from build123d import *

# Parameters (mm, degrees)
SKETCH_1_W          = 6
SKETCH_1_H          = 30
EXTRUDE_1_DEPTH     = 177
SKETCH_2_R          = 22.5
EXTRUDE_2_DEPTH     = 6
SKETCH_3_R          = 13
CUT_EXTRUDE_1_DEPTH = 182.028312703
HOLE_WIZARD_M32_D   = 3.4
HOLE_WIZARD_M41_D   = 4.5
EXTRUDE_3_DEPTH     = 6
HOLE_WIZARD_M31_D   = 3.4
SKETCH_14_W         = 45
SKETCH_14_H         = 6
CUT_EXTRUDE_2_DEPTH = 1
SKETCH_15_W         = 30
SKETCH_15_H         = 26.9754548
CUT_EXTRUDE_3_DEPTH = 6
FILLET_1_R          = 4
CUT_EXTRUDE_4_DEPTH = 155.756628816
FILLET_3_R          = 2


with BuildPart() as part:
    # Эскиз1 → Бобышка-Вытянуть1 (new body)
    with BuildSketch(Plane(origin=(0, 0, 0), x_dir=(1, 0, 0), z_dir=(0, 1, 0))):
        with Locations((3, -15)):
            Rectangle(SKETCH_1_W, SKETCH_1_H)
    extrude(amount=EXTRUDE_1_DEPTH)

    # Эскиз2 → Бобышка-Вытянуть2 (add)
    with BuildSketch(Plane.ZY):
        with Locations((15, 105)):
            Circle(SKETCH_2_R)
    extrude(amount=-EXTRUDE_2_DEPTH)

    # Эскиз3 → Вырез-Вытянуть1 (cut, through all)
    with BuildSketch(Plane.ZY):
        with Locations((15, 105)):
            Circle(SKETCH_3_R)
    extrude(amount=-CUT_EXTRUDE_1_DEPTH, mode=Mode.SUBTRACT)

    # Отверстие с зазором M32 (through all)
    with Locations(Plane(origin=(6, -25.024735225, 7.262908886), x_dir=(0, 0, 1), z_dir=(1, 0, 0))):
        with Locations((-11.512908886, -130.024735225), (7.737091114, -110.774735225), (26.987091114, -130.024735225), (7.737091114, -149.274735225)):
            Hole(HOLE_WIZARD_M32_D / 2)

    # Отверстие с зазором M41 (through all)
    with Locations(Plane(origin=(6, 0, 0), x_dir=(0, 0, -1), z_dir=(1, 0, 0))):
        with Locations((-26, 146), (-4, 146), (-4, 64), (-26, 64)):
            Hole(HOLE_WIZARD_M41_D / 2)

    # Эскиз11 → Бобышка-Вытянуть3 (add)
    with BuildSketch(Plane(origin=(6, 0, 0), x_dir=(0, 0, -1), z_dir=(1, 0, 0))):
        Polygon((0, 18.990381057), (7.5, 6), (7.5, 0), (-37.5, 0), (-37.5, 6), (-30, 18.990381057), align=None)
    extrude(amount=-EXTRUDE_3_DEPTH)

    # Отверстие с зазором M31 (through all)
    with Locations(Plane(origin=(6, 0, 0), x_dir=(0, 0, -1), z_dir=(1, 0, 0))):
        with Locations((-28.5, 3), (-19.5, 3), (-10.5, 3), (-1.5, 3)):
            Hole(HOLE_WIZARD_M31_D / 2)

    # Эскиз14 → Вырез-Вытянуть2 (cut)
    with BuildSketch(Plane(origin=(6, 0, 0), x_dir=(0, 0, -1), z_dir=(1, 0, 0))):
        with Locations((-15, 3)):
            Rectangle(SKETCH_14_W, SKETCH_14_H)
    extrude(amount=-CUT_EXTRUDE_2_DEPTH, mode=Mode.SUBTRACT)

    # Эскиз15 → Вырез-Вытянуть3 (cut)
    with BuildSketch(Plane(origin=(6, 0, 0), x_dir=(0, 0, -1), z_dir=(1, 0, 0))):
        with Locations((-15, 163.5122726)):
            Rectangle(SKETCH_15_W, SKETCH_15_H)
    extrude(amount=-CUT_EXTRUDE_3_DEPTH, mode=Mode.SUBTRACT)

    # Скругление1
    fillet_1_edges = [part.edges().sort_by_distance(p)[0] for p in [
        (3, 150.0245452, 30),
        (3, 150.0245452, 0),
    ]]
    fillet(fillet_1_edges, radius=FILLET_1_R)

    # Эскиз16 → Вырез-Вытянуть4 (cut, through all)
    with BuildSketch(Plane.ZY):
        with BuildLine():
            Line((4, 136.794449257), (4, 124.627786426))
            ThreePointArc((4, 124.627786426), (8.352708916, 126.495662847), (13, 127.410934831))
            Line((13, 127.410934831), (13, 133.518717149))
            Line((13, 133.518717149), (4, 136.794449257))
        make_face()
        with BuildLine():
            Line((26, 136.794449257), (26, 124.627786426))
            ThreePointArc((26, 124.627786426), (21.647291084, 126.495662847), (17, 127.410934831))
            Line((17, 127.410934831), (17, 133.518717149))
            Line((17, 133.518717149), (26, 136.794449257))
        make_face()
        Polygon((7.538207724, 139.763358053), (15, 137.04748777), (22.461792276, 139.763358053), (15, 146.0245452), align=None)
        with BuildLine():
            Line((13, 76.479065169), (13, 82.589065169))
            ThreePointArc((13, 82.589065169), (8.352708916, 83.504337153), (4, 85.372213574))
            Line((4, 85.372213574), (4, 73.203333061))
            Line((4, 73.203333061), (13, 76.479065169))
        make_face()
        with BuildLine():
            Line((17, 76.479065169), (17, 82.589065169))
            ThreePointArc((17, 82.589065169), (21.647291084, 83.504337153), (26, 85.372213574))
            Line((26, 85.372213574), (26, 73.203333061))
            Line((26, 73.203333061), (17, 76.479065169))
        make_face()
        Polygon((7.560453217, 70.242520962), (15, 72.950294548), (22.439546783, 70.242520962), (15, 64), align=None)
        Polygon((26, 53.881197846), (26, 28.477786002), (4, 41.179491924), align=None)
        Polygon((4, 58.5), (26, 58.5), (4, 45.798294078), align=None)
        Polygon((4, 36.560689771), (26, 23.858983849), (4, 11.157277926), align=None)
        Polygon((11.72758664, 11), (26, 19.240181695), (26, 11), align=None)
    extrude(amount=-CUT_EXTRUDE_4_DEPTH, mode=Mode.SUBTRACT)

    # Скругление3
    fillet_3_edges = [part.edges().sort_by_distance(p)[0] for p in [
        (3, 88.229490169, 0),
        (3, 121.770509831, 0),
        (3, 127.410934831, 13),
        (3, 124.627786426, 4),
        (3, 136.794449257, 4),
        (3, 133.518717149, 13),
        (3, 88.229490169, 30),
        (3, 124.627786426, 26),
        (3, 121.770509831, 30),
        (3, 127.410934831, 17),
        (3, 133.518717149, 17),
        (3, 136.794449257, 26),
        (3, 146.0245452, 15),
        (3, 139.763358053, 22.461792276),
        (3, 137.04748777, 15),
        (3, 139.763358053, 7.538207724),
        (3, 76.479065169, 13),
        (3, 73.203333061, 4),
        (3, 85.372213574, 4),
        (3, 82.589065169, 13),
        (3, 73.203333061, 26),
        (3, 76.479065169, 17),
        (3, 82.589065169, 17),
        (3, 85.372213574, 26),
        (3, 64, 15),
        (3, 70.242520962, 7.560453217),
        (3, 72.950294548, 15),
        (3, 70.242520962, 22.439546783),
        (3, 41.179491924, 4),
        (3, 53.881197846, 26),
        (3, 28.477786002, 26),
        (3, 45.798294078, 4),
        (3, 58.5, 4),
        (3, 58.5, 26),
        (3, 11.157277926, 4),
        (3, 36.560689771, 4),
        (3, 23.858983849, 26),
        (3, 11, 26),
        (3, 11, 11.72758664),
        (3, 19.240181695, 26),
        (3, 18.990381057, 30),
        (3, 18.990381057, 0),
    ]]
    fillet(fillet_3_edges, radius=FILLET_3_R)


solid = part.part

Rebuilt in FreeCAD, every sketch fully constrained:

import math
import FreeCAD as App
import Part
import Sketcher

V = App.Vector
Q = App.Units.Quantity


def edges_at(feature, points):
    """Names of the edges that pass closest to the given points."""
    edges = feature.Shape.Edges
    near = lambda p: min(range(len(edges)), key=lambda i: edges[i].distToShape(Part.Vertex(*p))[0])
    return sorted({f"Edge{near(p) + 1}" for p in points})


def add_polygon(sketch, points):
    """Adds a closed chain of lines whose ends are joined by coincident constraints."""
    first, n = sketch.GeometryCount, len(points)
    for a, b in zip(points, points[1:] + points[:1]):
        sketch.addGeometry(Part.LineSegment(App.Vector(*a, 0), App.Vector(*b, 0)), False)
    for i in range(n):
        sketch.addConstraint(Sketcher.Constraint("Coincident", first + i, 2, first + (i + 1) % n, 1))

doc = App.newDocument("Part")
params = doc.addObject("Spreadsheet::Sheet", "Params")
for row, (alias, value) in enumerate([
    ("sketch1_width", "6 mm"),
    ("sketch1_height", "30 mm"),
    ("pad1_length", "177 mm"),
    ("sketch2_diameter", "45 mm"),
    ("pad2_length", "6 mm"),
    ("sketch3_diameter", "26 mm"),
    ("sketch4_diameter", "3.4 mm"),
    ("hole_diameter", "3.4 mm"),
    ("sketch5_diameter", "4.5 mm"),
    ("hole2_diameter", "4.5 mm"),
    ("sketch6_width", "6 mm"),
    ("sketch6_height", "30 mm"),
    ("sketch6_height2", "45 mm"),
    ("pad3_length", "6 mm"),
    ("sketch7_diameter", "3.4 mm"),
    ("hole3_diameter", "3.4 mm"),
    ("sketch8_width", "6 mm"),
    ("sketch8_height", "45 mm"),
    ("pocket2_length", "1 mm"),
    ("sketch9_height", "30 mm"),
    ("pocket3_length", "6 mm"),
    ("fillet_radius", "4 mm"),
    ("sketch10_radius", "22.5 mm"),
    ("sketch10_height", "22 mm"),
    ("sketch10_width", "6.11 mm"),
    ("fillet2_radius", "2 mm"),
], start=1):
    params.set(f"A{row}", alias)
    params.set(f"B{row}", "=" + value)
    params.setAlias(f"B{row}", alias)

body = doc.addObject("PartDesign::Body", "Body")

sketch1 = doc.addObject("Sketcher::SketchObject", "Sketch")
body.addObject(sketch1)
sketch1.AttachmentSupport = (doc.XZ_Plane, [""])
sketch1.MapMode = "FlatFace"
add_polygon(sketch1, [(0, 0), (0, 30), (6, 30), (6, 0)])
sketch1.addConstraint([
    Sketcher.Constraint("Vertical", 0),
    Sketcher.Constraint("Horizontal", 1),
    Sketcher.Constraint("Vertical", 2),
    Sketcher.Constraint("Horizontal", 3),
    Sketcher.Constraint("Coincident", 3, 2, -1, 1),
    Sketcher.Constraint("DistanceX", 1, 1, 1, 2, Q("6 mm")),
    Sketcher.Constraint("DistanceY", 0, 1, 0, 2, Q("30 mm")),
])
sketch1.setExpression("Constraints[9]", "Params.sketch1_width")
sketch1.setExpression("Constraints[10]", "Params.sketch1_height")
pad1 = doc.addObject("PartDesign::Pad", "Pad")
body.addObject(pad1)
pad1.Profile = sketch1
pad1.setExpression("Length", "Params.pad1_length")
pad1.Reversed = True

sketch2 = doc.addObject("Sketcher::SketchObject", "Sketch001")
body.addObject(sketch2)
sketch2.AttachmentSupport = (doc.YZ_Plane, [""])
sketch2.MapMode = "FlatFace"
sketch2.addGeometry(Part.Circle(V(105, 15, 0), V(0, 0, 1), 22), False)
sketch2.addConstraint([
    Sketcher.Constraint("Diameter", 0, Q("45 mm")),
    Sketcher.Constraint("DistanceX", -1, 1, 0, 3, Q("105 mm")),
    Sketcher.Constraint("DistanceY", -1, 1, 0, 3, Q("15 mm")),
])
sketch2.setExpression("Constraints[0]", "Params.sketch2_diameter")
pad2 = doc.addObject("PartDesign::Pad", "Pad001")
body.addObject(pad2)
pad2.Profile = sketch2
pad2.setExpression("Length", "Params.pad2_length")

sketch3 = doc.addObject("Sketcher::SketchObject", "Sketch002")
body.addObject(sketch3)
sketch3.AttachmentSupport = (doc.YZ_Plane, [""])
sketch3.MapMode = "FlatFace"
sketch3.addGeometry(Part.Circle(V(105, 15, 0), V(0, 0, 1), 13), False)
sketch3.addConstraint([
    Sketcher.Constraint("Diameter", 0, Q("26 mm")),
    Sketcher.Constraint("DistanceX", -1, 1, 0, 3, Q("105 mm")),
    Sketcher.Constraint("DistanceY", -1, 1, 0, 3, Q("15 mm")),
])
sketch3.setExpression("Constraints[0]", "Params.sketch3_diameter")
pocket1 = doc.addObject("PartDesign::Pocket", "Pocket")
body.addObject(pocket1)
pocket1.Profile = sketch3
pocket1.Type = "ThroughAll"
pocket1.Reversed = True

sketch4 = doc.addObject("Sketcher::SketchObject", "Sketch003")
body.addObject(sketch4)
sketch4.AttachmentSupport = (doc.YZ_Plane, [""])
sketch4.MapMode = "FlatFace"
sketch4.AttachmentOffset = App.Placement(V(0, 0, 6), App.Rotation())
sketch4.addGeometry([
    Part.Circle(V(105, -4.2, 0), V(0, 0, 1), 1.7),
    Part.Circle(V(85.8, 15, 0), V(0, 0, 1), 1.7),
    Part.Circle(V(105, 34.2, 0), V(0, 0, 1), 1.7),
    Part.Circle(V(124.2, 15, 0), V(0, 0, 1), 1.7),
], False)
sketch4.addConstraint([
    Sketcher.Constraint("Equal", 0, 1),
    Sketcher.Constraint("Equal", 1, 2),
    Sketcher.Constraint("Equal", 2, 3),
    Sketcher.Constraint("Horizontal", 1, 3, 3, 3),
    Sketcher.Constraint("Vertical", 0, 3, 2, 3),
    Sketcher.Constraint("Diameter", 0, Q("3.4 mm")),
    Sketcher.Constraint("DistanceX", -1, 1, 0, 3, Q("105 mm")),
    Sketcher.Constraint("DistanceY", -1, 1, 1, 3, Q("15 mm")),
    Sketcher.Constraint("DistanceY", 0, 3, 2, 3, Q("38.5 mm")),
    Sketcher.Constraint("DistanceX", 1, 3, 3, 3, Q("38.5 mm")),
    Sketcher.Constraint("DistanceY", 0, 3, -1, 1, Q("4.25 mm")),
    Sketcher.Constraint("DistanceX", -1, 1, 1, 3, Q("85.75 mm")),
])
sketch4.setExpression("Constraints[5]", "Params.sketch4_diameter")
doc.recompute()
hole = doc.addObject("PartDesign::Hole", "Hole")
body.addObject(hole)
hole.Profile = sketch4
hole.ThreadType = "None"
hole.setExpression("Diameter", "Params.hole_diameter")
hole.DepthType = "ThroughAll"

sketch5 = doc.addObject("Sketcher::SketchObject", "Sketch004")
body.addObject(sketch5)
sketch5.AttachmentSupport = (doc.YZ_Plane, [""])
sketch5.MapMode = "FlatFace"
sketch5.AttachmentOffset = App.Placement(V(0, 0, 6), App.Rotation())
sketch5.addGeometry([
    Part.Circle(V(146, 26, 0), V(0, 0, 1), 2.2),
    Part.Circle(V(146, 4, 0), V(0, 0, 1), 2.2),
    Part.Circle(V(64, 4, 0), V(0, 0, 1), 2.2),
    Part.Circle(V(64, 26, 0), V(0, 0, 1), 2.2),
], False)
sketch5.addConstraint([
    Sketcher.Constraint("Equal", 0, 1),
    Sketcher.Constraint("Equal", 1, 2),
    Sketcher.Constraint("Equal", 2, 3),
    Sketcher.Constraint("Horizontal", 1, 3, 2, 3),
    Sketcher.Constraint("Horizontal", 0, 3, 3, 3),
    Sketcher.Constraint("Vertical", 0, 3, 1, 3),
    Sketcher.Constraint("Vertical", 2, 3, 3, 3),
    Sketcher.Constraint("Diameter", 0, Q("4.5 mm")),
    Sketcher.Constraint("DistanceX", -1, 1, 0, 3, Q("146 mm")),
    Sketcher.Constraint("DistanceY", -1, 1, 0, 3, Q("26 mm")),
    Sketcher.Constraint("DistanceY", -1, 1, 1, 3, Q("4 mm")),
    Sketcher.Constraint("DistanceX", -1, 1, 2, 3, Q("64 mm")),
])
sketch5.setExpression("Constraints[7]", "Params.sketch5_diameter")
doc.recompute()
hole2 = doc.addObject("PartDesign::Hole", "Hole001")
body.addObject(hole2)
hole2.Profile = sketch5
hole2.ThreadType = "None"
hole2.setExpression("Diameter", "Params.hole2_diameter")
hole2.DepthType = "ThroughAll"

sketch6 = doc.addObject("Sketcher::SketchObject", "Sketch005")
body.addObject(sketch6)
sketch6.AttachmentSupport = (doc.YZ_Plane, [""])
sketch6.MapMode = "FlatFace"
sketch6.AttachmentOffset = App.Placement(V(0, 0, 6), App.Rotation())
add_polygon(sketch6, [(6, -8), (19, 0), (19, 30), (6, 38), (0, 38), (0, -8)])
sketch6.addConstraint([
    Sketcher.Constraint("Vertical", 1),
    Sketcher.Constraint("Horizontal", 3),
    Sketcher.Constraint("Vertical", 4),
    Sketcher.Constraint("Horizontal", 5),
    Sketcher.Constraint("PointOnObject", 0, 2, -1),
    Sketcher.Constraint("PointOnObject", 3, 2, -2),
    Sketcher.Constraint("Vertical", 2, 2, 5, 2),
    Sketcher.Constraint("Equal", 0, 2),
    Sketcher.Constraint("DistanceX", 3, 2, 3, 1, Q("6 mm")),
    Sketcher.Constraint("DistanceY", 1, 1, 1, 2, Q("30 mm")),
    Sketcher.Constraint("DistanceY", 4, 2, 4, 1, Q("45 mm")),
    Sketcher.Constraint("Angle", 0, Q("30 deg")),
])
sketch6.setExpression("Constraints[14]", "Params.sketch6_width")
sketch6.setExpression("Constraints[15]", "Params.sketch6_height")
sketch6.setExpression("Constraints[16]", "Params.sketch6_height2")
pad3 = doc.addObject("PartDesign::Pad", "Pad002")
body.addObject(pad3)
pad3.Profile = sketch6
pad3.setExpression("Length", "Params.pad3_length")
pad3.Reversed = True

sketch7 = doc.addObject("Sketcher::SketchObject", "Sketch006")
body.addObject(sketch7)
sketch7.AttachmentSupport = (doc.YZ_Plane, [""])
sketch7.MapMode = "FlatFace"
sketch7.AttachmentOffset = App.Placement(V(0, 0, 6), App.Rotation())
sketch7.addGeometry([
    Part.Circle(V(3, 28.5, 0), V(0, 0, 1), 1.7),
    Part.Circle(V(3, 19.5, 0), V(0, 0, 1), 1.7),
    Part.Circle(V(3, 10.5, 0), V(0, 0, 1), 1.7),
    Part.Circle(V(3, 1.5, 0), V(0, 0, 1), 1.7),
], False)
sketch7.addConstraint([
    Sketcher.Constraint("Equal", 0, 1),
    Sketcher.Constraint("Equal", 1, 2),
    Sketcher.Constraint("Equal", 2, 3),
    Sketcher.Constraint("Vertical", 0, 3, 1, 3),
    Sketcher.Constraint("Vertical", 1, 3, 2, 3),
    Sketcher.Constraint("Vertical", 2, 3, 3, 3),
    Sketcher.Constraint("Diameter", 0, Q("3.4 mm")),
    Sketcher.Constraint("DistanceX", -1, 1, 0, 3, Q("3 mm")),
    Sketcher.Constraint("DistanceY", 1, 3, 0, 3, Q("9 mm")),
    Sketcher.Constraint("DistanceY", 2, 3, 1, 3, Q("9 mm")),
    Sketcher.Constraint("DistanceY", 3, 3, 2, 3, Q("9 mm")),
    Sketcher.Constraint("DistanceY", -1, 1, 0, 3, Q("28.5 mm")),
])
sketch7.setExpression("Constraints[6]", "Params.sketch7_diameter")
doc.recompute()
hole3 = doc.addObject("PartDesign::Hole", "Hole002")
body.addObject(hole3)
hole3.Profile = sketch7
hole3.ThreadType = "None"
hole3.setExpression("Diameter", "Params.hole3_diameter")
hole3.DepthType = "ThroughAll"

sketch8 = doc.addObject("Sketcher::SketchObject", "Sketch007")
body.addObject(sketch8)
sketch8.AttachmentSupport = (doc.YZ_Plane, [""])
sketch8.MapMode = "FlatFace"
sketch8.AttachmentOffset = App.Placement(V(0, 0, 6), App.Rotation())
add_polygon(sketch8, [(6, 38), (0, 38), (0, -8), (6, -8)])
sketch8.addConstraint([
    Sketcher.Constraint("Horizontal", 0),
    Sketcher.Constraint("Vertical", 1),
    Sketcher.Constraint("Horizontal", 2),
    Sketcher.Constraint("Vertical", 3),
    Sketcher.Constraint("PointOnObject", 0, 2, -2),
    Sketcher.Constraint("DistanceX", 0, 2, 0, 1, Q("6 mm")),
    Sketcher.Constraint("DistanceY", 1, 2, 1, 1, Q("45 mm")),
    Sketcher.Constraint("DistanceY", -1, 1, 0, 2, Q("37.5 mm")),
])
sketch8.setExpression("Constraints[9]", "Params.sketch8_width")
sketch8.setExpression("Constraints[10]", "Params.sketch8_height")
pocket2 = doc.addObject("PartDesign::Pocket", "Pocket001")
body.addObject(pocket2)
pocket2.Profile = sketch8
pocket2.setExpression("Length", "Params.pocket2_length")

sketch9 = doc.addObject("Sketcher::SketchObject", "Sketch008")
body.addObject(sketch9)
sketch9.AttachmentSupport = (doc.YZ_Plane, [""])
sketch9.MapMode = "FlatFace"
sketch9.AttachmentOffset = App.Placement(V(0, 0, 6), App.Rotation())
add_polygon(sketch9, [(177, 30), (150, 30), (150, 0), (177, 0)])
sketch9.addConstraint([
    Sketcher.Constraint("Horizontal", 0),
    Sketcher.Constraint("Vertical", 1),
    Sketcher.Constraint("Horizontal", 2),
    Sketcher.Constraint("Vertical", 3),
    Sketcher.Constraint("PointOnObject", 1, 2, -1),
    Sketcher.Constraint("DistanceY", 1, 2, 1, 1, Q("30 mm")),
    Sketcher.Constraint("DistanceX", -1, 1, 2, 2, Q("177 mm")),
    Sketcher.Constraint("DistanceX", 0, 2, 0, 1, Q("26.975455 mm")),
])
sketch9.setExpression("Constraints[9]", "Params.sketch9_height")
pocket3 = doc.addObject("PartDesign::Pocket", "Pocket002")
body.addObject(pocket3)
pocket3.Profile = sketch9
pocket3.setExpression("Length", "Params.pocket3_length")
doc.recompute()

fillet = doc.addObject("PartDesign::Fillet", "Fillet")
body.addObject(fillet)
fillet.Base = (pocket3, edges_at(pocket3, [(3, 150.025, 30), (3, 150.025, 0)]))
fillet.setExpression("Radius", "Params.fillet_radius")

sketch10 = doc.addObject("Sketcher::SketchObject", "Sketch009")
body.addObject(sketch10)
sketch10.AttachmentSupport = (doc.YZ_Plane, [""])
sketch10.MapMode = "FlatFace"
sketch10.addGeometry(Part.LineSegment(V(137, 4, 0), V(125, 4, 0)), False)
sketch10.addGeometry(Part.ArcOfCircle(Part.Circle(V(105, 15, 0), V(0, 0, 1), 23), math.radians(-29), math.radians(-5)), False)
sketch10.addGeometry(Part.LineSegment(V(127, 13, 0), V(134, 13, 0)), False)
sketch10.addGeometry(Part.LineSegment(V(134, 13, 0), V(137, 4, 0)), False)
sketch10.addGeometry(Part.LineSegment(V(125, 26, 0), V(137, 26, 0)), False)
sketch10.addGeometry(Part.LineSegment(V(137, 26, 0), V(134, 17, 0)), False)
sketch10.addGeometry(Part.LineSegment(V(134, 17, 0), V(127, 17, 0)), False)
sketch10.addGeometry(Part.ArcOfCircle(Part.Circle(V(105, 15, 0), V(0, 0, 1), 23), math.radians(5), math.radians(29)), False)
add_polygon(sketch10, [(140, 8), (137, 15), (140, 22), (146, 15)])
sketch10.addGeometry(Part.LineSegment(V(76, 13, 0), V(83, 13, 0)), False)
sketch10.addGeometry(Part.ArcOfCircle(Part.Circle(V(105, 15, 0), V(0, 0, 1), 23), math.radians(-175), math.radians(-151)), False)
sketch10.addGeometry(Part.LineSegment(V(85, 4, 0), V(73, 4, 0)), False)
sketch10.addGeometry(Part.LineSegment(V(73, 4, 0), V(76, 13, 0)), False)
sketch10.addGeometry(Part.LineSegment(V(83, 17, 0), V(76, 17, 0)), False)
sketch10.addGeometry(Part.LineSegment(V(76, 17, 0), V(73, 26, 0)), False)
sketch10.addGeometry(Part.LineSegment(V(73, 26, 0), V(85, 26, 0)), False)
sketch10.addGeometry(Part.ArcOfCircle(Part.Circle(V(105, 15, 0), V(0, 0, 1), 23), math.radians(151), math.radians(175)), False)
add_polygon(sketch10, [(73, 15), (70, 8), (64, 15), (70, 22)])
add_polygon(sketch10, [(28, 26), (54, 26), (41, 4)])
add_polygon(sketch10, [(58, 26), (58, 4), (46, 4)])
add_polygon(sketch10, [(24, 26), (37, 4), (11, 4)])
add_polygon(sketch10, [(19, 26), (11, 12), (11, 26)])
sketch10.addConstraint([
    Sketcher.Constraint("Coincident", 0, 2, 1, 1),
    Sketcher.Constraint("Coincident", 1, 2, 2, 1),
    Sketcher.Constraint("Coincident", 2, 2, 3, 1),
    Sketcher.Constraint("Coincident", 3, 2, 0, 1),
    Sketcher.Constraint("Coincident", 4, 2, 5, 1),
    Sketcher.Constraint("Coincident", 5, 2, 6, 1),
    Sketcher.Constraint("Coincident", 6, 2, 7, 1),
    Sketcher.Constraint("Coincident", 7, 2, 4, 1),
    Sketcher.Constraint("Coincident", 12, 2, 13, 1),
    Sketcher.Constraint("Coincident", 13, 2, 14, 1),
    Sketcher.Constraint("Coincident", 14, 2, 15, 1),
    Sketcher.Constraint("Coincident", 15, 2, 12, 1),
    Sketcher.Constraint("Coincident", 16, 2, 17, 1),
    Sketcher.Constraint("Coincident", 17, 2, 18, 1),
    Sketcher.Constraint("Coincident", 18, 2, 19, 1),
    Sketcher.Constraint("Coincident", 19, 2, 16, 1),
    Sketcher.Constraint("Horizontal", 0),
    Sketcher.Constraint("Horizontal", 2),
    Sketcher.Constraint("Horizontal", 4),
    Sketcher.Constraint("Horizontal", 6),
    Sketcher.Constraint("Horizontal", 12),
    Sketcher.Constraint("Horizontal", 14),
    Sketcher.Constraint("Horizontal", 16),
    Sketcher.Constraint("Horizontal", 18),
    Sketcher.Constraint("Horizontal", 24),
    Sketcher.Constraint("Vertical", 27),
    Sketcher.Constraint("Horizontal", 28),
    Sketcher.Constraint("Horizontal", 31),
    Sketcher.Constraint("Vertical", 34),
    Sketcher.Constraint("Horizontal", 35),
    Sketcher.Constraint("Coincident", 7, 3, 1, 3),
    Sketcher.Constraint("Coincident", 13, 3, 1, 3),
    Sketcher.Constraint("Coincident", 19, 3, 1, 3),
    Sketcher.Constraint("Equal", 1, 7),
    Sketcher.Constraint("Equal", 7, 13),
    Sketcher.Constraint("Equal", 13, 19),
    Sketcher.Constraint("Parallel", 3, 8),
    Sketcher.Constraint("Parallel", 5, 9),
    Sketcher.Constraint("Parallel", 9, 15),
    Sketcher.Constraint("Parallel", 8, 17),
    Sketcher.Constraint("Parallel", 15, 20),
    Sketcher.Constraint("Parallel", 10, 21),
    Sketcher.Constraint("Parallel", 11, 22),
    Sketcher.Constraint("Parallel", 17, 23),
    Sketcher.Constraint("Parallel", 25, 29),
    Sketcher.Constraint("Parallel", 26, 30),
    Sketcher.Constraint("Parallel", 29, 32),
    Sketcher.Constraint("Parallel", 32, 33),
    Sketcher.Constraint("Horizontal", 19, 3, 8, 2),
    Sketcher.Constraint("Horizontal", 8, 2, 10, 2),
    Sketcher.Constraint("Horizontal", 2, 2, 12, 2),
    Sketcher.Constraint("Horizontal", 3, 2, 13, 2),
    Sketcher.Constraint("Horizontal", 6, 2, 16, 2),
    Sketcher.Constraint("Horizontal", 7, 2, 17, 2),
    Sketcher.Constraint("Horizontal", 10, 2, 21, 2),
    Sketcher.Constraint("Horizontal", 21, 2, 23, 2),
    Sketcher.Constraint("Horizontal", 18, 2, 24, 2),
    Sketcher.Constraint("Horizontal", 14, 2, 25, 2),
    Sketcher.Constraint("Horizontal", 25, 2, 27, 2),
    Sketcher.Constraint("Horizontal", 26, 2, 29, 2),
    Sketcher.Constraint("Horizontal", 28, 2, 30, 2),
    Sketcher.Constraint("Horizontal", 29, 2, 32, 2),
    Sketcher.Constraint("Horizontal", 32, 2, 34, 2),
    Sketcher.Constraint("Vertical", 3, 2, 4, 2),
    Sketcher.Constraint("Vertical", 2, 2, 5, 2),
    Sketcher.Constraint("Vertical", 1, 2, 6, 2),
    Sketcher.Constraint("Vertical", 0, 2, 7, 2),
    Sketcher.Constraint("Vertical", 9, 2, 11, 2),
    Sketcher.Constraint("Vertical", 15, 2, 16, 2),
    Sketcher.Constraint("Equal", 25, 26),
    Sketcher.Constraint("Radius", 1, Q("22.5 mm")),
    Sketcher.Constraint("DistanceY", 27, 2, 27, 1, Q("22 mm")),
    Sketcher.Constraint("Angle", 3, Q("-70 deg")),
    Sketcher.Constraint("Angle", 10, Q("-50 deg")),
    Sketcher.Constraint("Angle", 25, Q("-120 deg")),
    Sketcher.Constraint("DistanceX", -1, 1, 1, 3, Q("105 mm")),
    Sketcher.Constraint("DistanceY", -1, 1, 1, 3, Q("15 mm")),
    Sketcher.Constraint("DistanceY", -1, 1, 1, 2, Q("13 mm")),
    Sketcher.Constraint("DistanceX", -1, 1, 21, 2, Q("64 mm")),
    Sketcher.Constraint("DistanceX", -1, 1, 33, 2, Q("11 mm")),
    Sketcher.Constraint("DistanceX", 12, 1, 12, 2, Q("6.11 mm")),
    Sketcher.Constraint("DistanceX", -1, 1, 27, 2, Q("58.5 mm")),
    Sketcher.Constraint("Distance", 20, Q("7.917 mm")),
    Sketcher.Constraint("DistanceX", 35, 1, 35, 2, Q("8.240182 mm")),
    Sketcher.Constraint("Distance", 10, Q("9.740678 mm")),
    Sketcher.Constraint("DistanceX", 0, 2, 0, 1, Q("12.166663 mm")),
    Sketcher.Constraint("DistanceX", -1, 1, 9, 2, Q("139.763358 mm")),
    Sketcher.Constraint("DistanceX", -1, 1, 25, 2, Q("41.179492 mm")),
    Sketcher.Constraint("DistanceX", -1, 1, 30, 2, Q("36.56069 mm")),
])
sketch10.setExpression("Constraints[90]", "Params.sketch10_radius")
sketch10.setExpression("Constraints[91]", "Params.sketch10_height")
sketch10.setExpression("Constraints[100]", "Params.sketch10_width")
pocket4 = doc.addObject("PartDesign::Pocket", "Pocket003")
body.addObject(pocket4)
pocket4.Profile = sketch10
pocket4.Type = "ThroughAll"
pocket4.Reversed = True
doc.recompute()

fillet2 = doc.addObject("PartDesign::Fillet", "Fillet001")
body.addObject(fillet2)
fillet2.Base = (pocket4, edges_at(pocket4, [
    (3, 88.229, 0),
    (3, 121.771, 0),
    (3, 127.411, 13),
    (3, 124.628, 4),
    (3, 136.794, 4),
    (3, 133.519, 13),
    (3, 88.229, 30),
    (3, 124.628, 26),
    (3, 121.771, 30),
    (3, 127.411, 17),
    (3, 133.519, 17),
    (3, 136.794, 26),
    (3, 146.025, 15),
    (3, 139.763, 22.462),
    (3, 137.047, 15),
    (3, 139.763, 7.538),
    (3, 76.479, 13),
    (3, 73.203, 4),
    (3, 85.372, 4),
    (3, 82.589, 13),
    (3, 73.203, 26),
    (3, 76.479, 17),
    (3, 82.589, 17),
    (3, 85.372, 26),
    (3, 64, 15),
    (3, 70.243, 7.56),
    (3, 72.95, 15),
    (3, 70.243, 22.44),
    (3, 41.179, 4),
    (3, 53.881, 26),
    (3, 28.478, 26),
    (3, 45.798, 4),
    (3, 58.5, 4),
    (3, 58.5, 26),
    (3, 11.157, 4),
    (3, 36.561, 4),
    (3, 23.859, 26),
    (3, 11, 26),
    (3, 11, 11.728),
    (3, 19.24, 26),
    (3, 18.99, 30),
    (3, 18.99, 0),
]))
fillet2.setExpression("Radius", "Params.fillet2_radius")

doc.recompute()
